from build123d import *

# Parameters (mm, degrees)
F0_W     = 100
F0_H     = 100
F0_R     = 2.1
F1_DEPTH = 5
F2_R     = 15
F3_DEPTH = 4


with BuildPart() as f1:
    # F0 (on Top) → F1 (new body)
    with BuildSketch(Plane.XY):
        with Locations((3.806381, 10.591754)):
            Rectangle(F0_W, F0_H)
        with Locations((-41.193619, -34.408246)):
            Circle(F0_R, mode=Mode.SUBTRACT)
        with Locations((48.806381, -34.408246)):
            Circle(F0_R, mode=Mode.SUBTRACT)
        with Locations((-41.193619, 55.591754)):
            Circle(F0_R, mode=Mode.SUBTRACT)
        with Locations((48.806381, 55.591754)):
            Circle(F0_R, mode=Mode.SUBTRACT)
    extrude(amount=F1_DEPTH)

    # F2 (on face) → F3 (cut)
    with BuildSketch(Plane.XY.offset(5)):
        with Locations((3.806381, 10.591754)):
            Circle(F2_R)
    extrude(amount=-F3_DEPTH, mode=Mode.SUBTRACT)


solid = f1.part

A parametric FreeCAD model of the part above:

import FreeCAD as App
import Part
import Sketcher
from FreeCAD import Vector

doc = App.newDocument("Part")
params = doc.addObject("Spreadsheet::Sheet", "Params")
for row, (alias, value) in enumerate([
    ("sketch1_diameter", "4.2 mm"),
    ("sketch1_width", "100 mm"),
    ("pad1_length", "5 mm"),
    ("sketch2_diameter", "30 mm"),
    ("pocket1_length", "4 mm"),
], start=1):
    params.set(f"A{row}", alias)
    params.set(f"B{row}", "=" + value)
    params.setAlias(f"B{row}", alias)

body = doc.addObject("PartDesign::Body", "Body")

sketch1 = doc.addObject("Sketcher::SketchObject", "Sketch")
body.addObject(sketch1)
sketch1.AttachmentSupport = (doc.XY_Plane, [""])
sketch1.MapMode = "FlatFace"
sketch1.addGeometry([
    Part.LineSegment(Vector(-46.2, 60.6, 0), Vector(-46.2, -39.4, 0)),
    Part.LineSegment(Vector(-46.2, -39.4, 0), Vector(53.8, -39.4, 0)),
    Part.LineSegment(Vector(53.8, -39.4, 0), Vector(53.8, 60.6, 0)),
    Part.LineSegment(Vector(53.8, 60.6, 0), Vector(-46.2, 60.6, 0)),
    Part.Circle(Vector(-41.2, -34.4, 0), Vector(0, 0, 1), 2.1),
    Part.Circle(Vector(48.8, -34.4, 0), Vector(0, 0, 1), 2.1),
    Part.Circle(Vector(-41.2, 55.6, 0), Vector(0, 0, 1), 2.1),
    Part.Circle(Vector(48.8, 55.6, 0), Vector(0, 0, 1), 2.1),
], False)
sketch1.addConstraint([
    Sketcher.Constraint("Coincident", 0, 2, 1, 1),
    Sketcher.Constraint("Coincident", 1, 2, 2, 1),
    Sketcher.Constraint("Coincident", 2, 2, 3, 1),
    Sketcher.Constraint("Coincident", 3, 2, 0, 1),
    Sketcher.Constraint("Vertical", 0),
    Sketcher.Constraint("Horizontal", 1),
    Sketcher.Constraint("Vertical", 2),
    Sketcher.Constraint("Horizontal", 3),
    Sketcher.Constraint("Equal", 4, 5),
    Sketcher.Constraint("Equal", 5, 6),
    Sketcher.Constraint("Equal", 6, 7),
    Sketcher.Constraint("Horizontal", 4, 3, 5, 3),
    Sketcher.Constraint("Horizontal", 6, 3, 7, 3),
    Sketcher.Constraint("Vertical", 4, 3, 6, 3),
    Sketcher.Constraint("Vertical", 5, 3, 7, 3),
    Sketcher.Constraint("Equal", 3, 0),
    Sketcher.Constraint("Diameter", 4, 4.2),
    Sketcher.Constraint("DistanceX", 1, 1, 1, 2, 100.0),
    Sketcher.Constraint("DistanceX", 4, 3, 5, 3, 90.0),
    Sketcher.Constraint("DistanceY", 4, 3, 6, 3, 90.0),
    Sketcher.Constraint("DistanceX", 0, 2, 4, 3, 5.0),
    Sketcher.Constraint("DistanceY", 0, 2, 4, 3, 5.0),
    Sketcher.Constraint("DistanceX", 4, 3, -1, 1, 41.193619),
    Sketcher.Constraint("DistanceY", 4, 3, -1, 1, 34.408246),
])
sketch1.setExpression("Constraints[16]", "Params.sketch1_diameter")
sketch1.setExpression("Constraints[17]", "Params.sketch1_width")
pad1 = doc.addObject("PartDesign::Pad", "Pad")
body.addObject(pad1)
pad1.Profile = sketch1
pad1.setExpression("Length", "Params.pad1_length")

sketch2 = doc.addObject("Sketcher::SketchObject", "Sketch001")
body.addObject(sketch2)
sketch2.AttachmentSupport = (doc.XY_Plane, [""])
sketch2.MapMode = "FlatFace"
sketch2.AttachmentOffset = App.Placement(Vector(0, 0, 5), App.Rotation())
sketch2.addGeometry(Part.Circle(Vector(4, 11, 0), Vector(0, 0, 1), 15), False)
sketch2.addConstraint([
    Sketcher.Constraint("Diameter", 0, 30.0),
    Sketcher.Constraint("DistanceX", -1, 1, 0, 3, 3.806381),
    Sketcher.Constraint("DistanceY", -1, 1, 0, 3, 10.591754),
])
sketch2.setExpression("Constraints[0]", "Params.sketch2_diameter")
pocket1 = doc.addObject("PartDesign::Pocket", "Pocket")
body.addObject(pocket1)
pocket1.Profile = sketch2
pocket1.setExpression("Length", "Params.pocket1_length")

doc.recompute()
